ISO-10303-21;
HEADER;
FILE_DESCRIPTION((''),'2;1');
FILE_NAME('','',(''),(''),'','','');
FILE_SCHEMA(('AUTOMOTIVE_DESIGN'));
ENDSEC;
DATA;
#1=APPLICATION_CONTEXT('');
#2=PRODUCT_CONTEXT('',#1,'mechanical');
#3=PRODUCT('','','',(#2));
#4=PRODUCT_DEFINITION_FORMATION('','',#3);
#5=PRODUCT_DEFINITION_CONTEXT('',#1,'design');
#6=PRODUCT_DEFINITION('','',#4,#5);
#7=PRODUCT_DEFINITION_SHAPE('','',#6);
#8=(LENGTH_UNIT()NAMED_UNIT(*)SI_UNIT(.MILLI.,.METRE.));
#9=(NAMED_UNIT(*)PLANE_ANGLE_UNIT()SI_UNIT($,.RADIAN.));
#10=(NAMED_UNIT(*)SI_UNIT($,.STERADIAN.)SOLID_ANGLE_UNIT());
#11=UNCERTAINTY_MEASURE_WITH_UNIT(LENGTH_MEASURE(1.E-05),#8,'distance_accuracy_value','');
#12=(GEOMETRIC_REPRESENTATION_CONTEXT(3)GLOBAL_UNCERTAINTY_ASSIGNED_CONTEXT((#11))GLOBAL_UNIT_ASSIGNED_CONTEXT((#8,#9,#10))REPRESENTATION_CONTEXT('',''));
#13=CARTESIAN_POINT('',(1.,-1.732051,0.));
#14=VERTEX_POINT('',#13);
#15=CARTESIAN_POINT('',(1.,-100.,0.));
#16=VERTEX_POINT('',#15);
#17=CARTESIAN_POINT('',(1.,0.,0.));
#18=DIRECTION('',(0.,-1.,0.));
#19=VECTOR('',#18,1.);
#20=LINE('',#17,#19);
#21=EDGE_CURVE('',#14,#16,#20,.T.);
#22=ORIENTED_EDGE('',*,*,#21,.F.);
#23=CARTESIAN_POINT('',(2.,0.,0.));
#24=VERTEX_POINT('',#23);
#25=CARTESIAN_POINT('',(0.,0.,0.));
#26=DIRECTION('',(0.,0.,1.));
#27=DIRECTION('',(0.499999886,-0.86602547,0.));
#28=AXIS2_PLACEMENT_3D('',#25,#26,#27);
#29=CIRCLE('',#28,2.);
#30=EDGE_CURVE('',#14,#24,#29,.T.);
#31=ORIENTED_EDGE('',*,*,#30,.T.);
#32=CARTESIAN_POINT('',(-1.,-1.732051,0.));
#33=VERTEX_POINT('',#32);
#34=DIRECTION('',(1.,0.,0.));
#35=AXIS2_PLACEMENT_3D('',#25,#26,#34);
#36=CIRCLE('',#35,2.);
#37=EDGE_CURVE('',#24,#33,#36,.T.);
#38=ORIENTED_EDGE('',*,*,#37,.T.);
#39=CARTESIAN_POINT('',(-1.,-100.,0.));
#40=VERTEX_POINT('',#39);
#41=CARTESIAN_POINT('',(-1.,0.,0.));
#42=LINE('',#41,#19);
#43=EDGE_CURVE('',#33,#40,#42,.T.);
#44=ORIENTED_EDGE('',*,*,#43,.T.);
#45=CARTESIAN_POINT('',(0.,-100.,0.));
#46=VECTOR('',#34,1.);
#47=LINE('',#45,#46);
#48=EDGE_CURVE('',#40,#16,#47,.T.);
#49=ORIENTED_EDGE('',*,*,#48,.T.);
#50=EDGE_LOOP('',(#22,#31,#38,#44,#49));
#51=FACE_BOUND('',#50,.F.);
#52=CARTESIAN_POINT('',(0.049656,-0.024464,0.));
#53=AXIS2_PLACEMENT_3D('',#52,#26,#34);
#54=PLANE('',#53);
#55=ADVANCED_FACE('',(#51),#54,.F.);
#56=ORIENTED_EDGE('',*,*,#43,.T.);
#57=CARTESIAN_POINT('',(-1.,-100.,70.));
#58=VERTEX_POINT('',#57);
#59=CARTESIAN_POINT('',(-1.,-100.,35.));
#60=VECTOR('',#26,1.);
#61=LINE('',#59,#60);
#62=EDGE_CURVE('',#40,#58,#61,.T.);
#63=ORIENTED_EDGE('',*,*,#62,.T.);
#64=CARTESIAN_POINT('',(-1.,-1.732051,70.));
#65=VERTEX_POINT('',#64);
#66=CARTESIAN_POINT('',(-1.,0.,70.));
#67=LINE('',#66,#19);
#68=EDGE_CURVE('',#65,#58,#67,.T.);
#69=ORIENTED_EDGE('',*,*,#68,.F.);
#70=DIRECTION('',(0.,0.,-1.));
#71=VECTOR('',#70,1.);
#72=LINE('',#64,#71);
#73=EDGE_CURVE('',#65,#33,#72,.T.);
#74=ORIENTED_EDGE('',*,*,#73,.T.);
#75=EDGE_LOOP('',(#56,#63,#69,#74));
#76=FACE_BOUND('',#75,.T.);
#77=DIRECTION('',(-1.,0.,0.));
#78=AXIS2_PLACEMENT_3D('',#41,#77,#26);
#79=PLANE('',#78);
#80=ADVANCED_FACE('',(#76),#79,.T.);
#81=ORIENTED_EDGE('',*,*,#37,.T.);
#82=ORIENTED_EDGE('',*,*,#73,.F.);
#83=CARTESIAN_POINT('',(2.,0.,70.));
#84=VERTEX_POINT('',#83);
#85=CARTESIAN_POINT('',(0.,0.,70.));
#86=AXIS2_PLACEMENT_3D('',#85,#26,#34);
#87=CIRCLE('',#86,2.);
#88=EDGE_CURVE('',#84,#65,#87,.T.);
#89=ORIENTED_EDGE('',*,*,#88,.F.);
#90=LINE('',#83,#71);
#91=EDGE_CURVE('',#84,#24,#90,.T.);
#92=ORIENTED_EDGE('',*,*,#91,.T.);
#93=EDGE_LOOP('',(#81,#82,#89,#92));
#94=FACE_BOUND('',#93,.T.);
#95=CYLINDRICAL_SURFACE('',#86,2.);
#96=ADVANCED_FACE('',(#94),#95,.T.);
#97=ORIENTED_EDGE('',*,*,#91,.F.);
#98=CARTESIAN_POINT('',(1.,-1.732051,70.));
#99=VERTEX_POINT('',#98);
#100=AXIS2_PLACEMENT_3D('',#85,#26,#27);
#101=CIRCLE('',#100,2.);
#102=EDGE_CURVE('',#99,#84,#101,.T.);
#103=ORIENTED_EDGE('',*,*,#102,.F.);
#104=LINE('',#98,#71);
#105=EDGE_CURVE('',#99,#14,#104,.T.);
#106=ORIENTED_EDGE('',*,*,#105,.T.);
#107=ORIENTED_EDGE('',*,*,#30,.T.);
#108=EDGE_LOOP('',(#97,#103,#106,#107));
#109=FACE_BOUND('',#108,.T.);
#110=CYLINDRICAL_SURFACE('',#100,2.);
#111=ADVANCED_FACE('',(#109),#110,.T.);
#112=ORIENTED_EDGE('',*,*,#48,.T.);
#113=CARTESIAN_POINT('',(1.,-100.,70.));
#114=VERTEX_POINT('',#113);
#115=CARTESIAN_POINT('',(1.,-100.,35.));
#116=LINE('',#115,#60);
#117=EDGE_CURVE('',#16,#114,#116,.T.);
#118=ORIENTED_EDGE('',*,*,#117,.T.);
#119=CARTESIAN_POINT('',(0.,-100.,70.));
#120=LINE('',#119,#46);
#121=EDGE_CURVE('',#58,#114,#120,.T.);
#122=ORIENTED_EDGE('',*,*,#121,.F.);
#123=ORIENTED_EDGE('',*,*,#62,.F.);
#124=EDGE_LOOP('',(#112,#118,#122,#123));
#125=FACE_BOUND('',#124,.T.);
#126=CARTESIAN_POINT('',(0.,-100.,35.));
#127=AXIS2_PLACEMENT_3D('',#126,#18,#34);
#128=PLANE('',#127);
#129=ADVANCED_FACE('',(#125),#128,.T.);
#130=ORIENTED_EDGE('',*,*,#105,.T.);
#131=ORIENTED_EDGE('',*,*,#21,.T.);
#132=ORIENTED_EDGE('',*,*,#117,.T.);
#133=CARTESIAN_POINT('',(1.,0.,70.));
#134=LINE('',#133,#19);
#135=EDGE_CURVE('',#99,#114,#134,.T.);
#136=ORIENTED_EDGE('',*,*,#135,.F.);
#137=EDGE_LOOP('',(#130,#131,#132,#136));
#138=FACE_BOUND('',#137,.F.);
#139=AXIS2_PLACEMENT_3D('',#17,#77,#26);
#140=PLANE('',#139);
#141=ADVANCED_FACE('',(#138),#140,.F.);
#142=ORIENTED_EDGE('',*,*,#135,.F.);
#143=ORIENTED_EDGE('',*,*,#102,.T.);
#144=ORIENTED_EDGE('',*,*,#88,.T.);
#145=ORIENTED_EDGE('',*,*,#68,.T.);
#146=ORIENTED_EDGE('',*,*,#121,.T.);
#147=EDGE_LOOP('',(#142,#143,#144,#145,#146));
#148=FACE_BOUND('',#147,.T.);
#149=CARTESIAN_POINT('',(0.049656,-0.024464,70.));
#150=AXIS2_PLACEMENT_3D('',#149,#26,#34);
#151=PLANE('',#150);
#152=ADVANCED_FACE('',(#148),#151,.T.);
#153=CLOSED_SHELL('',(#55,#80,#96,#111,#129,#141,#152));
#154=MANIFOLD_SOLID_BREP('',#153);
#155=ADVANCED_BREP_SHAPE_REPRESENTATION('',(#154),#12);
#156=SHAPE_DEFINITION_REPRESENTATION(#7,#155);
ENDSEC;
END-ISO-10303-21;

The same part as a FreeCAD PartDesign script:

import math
import FreeCAD as App
import Part
import Sketcher

V = App.Vector
Q = App.Units.Quantity


def add_polygon(sketch, points):
    """Adds a closed chain of lines whose ends are joined by coincident constraints."""
    first, n = sketch.GeometryCount, len(points)
    for a, b in zip(points, points[1:] + points[:1]):
        sketch.addGeometry(Part.LineSegment(App.Vector(*a, 0), App.Vector(*b, 0)), False)
    for i in range(n):
        sketch.addConstraint(Sketcher.Constraint("Coincident", first + i, 2, first + (i + 1) % n, 1))

doc = App.newDocument("Part")
body = doc.addObject("PartDesign::Body", "Body")

# Sketch on XZ plane
sketch1 = doc.addObject("Sketcher::SketchObject", "Sketch")
body.addObject(sketch1)
sketch1.AttachmentSupport = (doc.XZ_Plane, [""])
sketch1.MapMode = "FlatFace"
add_polygon(sketch1, [(-1, 70), (-1, 0), (1, 0), (1, 70)])  # lines 0-3
sketch1.addConstraint(Sketcher.Constraint("Vertical", 0))
sketch1.addConstraint(Sketcher.Constraint("Horizontal", 1))
sketch1.addConstraint(Sketcher.Constraint("Vertical", 2))
sketch1.addConstraint(Sketcher.Constraint("Horizontal", 3))
sketch1.addConstraint(Sketcher.Constraint("Symmetric", 0, 2, 1, 2, -1, 1))
sketch1.addConstraint(Sketcher.Constraint("DistanceX", 1, 1, 1, 2, Q("2 mm")))
sketch1.addConstraint(Sketcher.Constraint("DistanceY", 0, 2, 0, 1, Q("70 mm")))
pad1 = doc.addObject("PartDesign::Pad", "Pad")
body.addObject(pad1)
pad1.Profile = sketch1
pad1.Length = 100

# Sketch on XY plane
sketch2 = doc.addObject("Sketcher::SketchObject", "Sketch001")
body.addObject(sketch2)
sketch2.AttachmentSupport = (doc.XY_Plane, [""])
sketch2.MapMode = "FlatFace"
sketch2.AttachmentOffset = App.Placement(V(0, 0, 70), App.Rotation())
sketch2.addGeometry(Part.ArcOfCircle(Part.Circle(V(0, 0, 0), V(0, 0, 1), 2), math.radians(-60), math.radians(0)), False)
sketch2.addGeometry(Part.ArcOfCircle(Part.Circle(V(0, 0, 0), V(0, 0, 1), 2), math.radians(0), math.radians(240)), False)
sketch2.addGeometry(Part.LineSegment(V(-1, -1.7, 0), V(-1, 0, 0)), False)
sketch2.addGeometry(Part.LineSegment(V(-1, 0, 0), V(1, 0, 0)), False)
sketch2.addGeometry(Part.LineSegment(V(1, 0, 0), V(1, -1.7, 0)), False)
sketch2.addConstraint(Sketcher.Constraint("Tangent", 0, 2, 1, 1))
sketch2.addConstraint(Sketcher.Constraint("Coincident", 1, 2, 2, 1))
sketch2.addConstraint(Sketcher.Constraint("Coincident", 2, 2, 3, 1))
sketch2.addConstraint(Sketcher.Constraint("Coincident", 3, 2, 4, 1))
sketch2.addConstraint(Sketcher.Constraint("Coincident", 4, 2, 0, 1))
sketch2.addConstraint(Sketcher.Constraint("Vertical", 2))
sketch2.addConstraint(Sketcher.Constraint("Horizontal", 3))
sketch2.addConstraint(Sketcher.Constraint("Vertical", 4))
sketch2.addConstraint(Sketcher.Constraint("Coincident", 0, 3, -1, 1))
sketch2.addConstraint(Sketcher.Constraint("Equal", 0, 1))
sketch2.addConstraint(Sketcher.Constraint("Symmetric", 2, 2, 3, 2, -1, 1))
sketch2.addConstraint(Sketcher.Constraint("PointOnObject", 0, 2, -1))
sketch2.addConstraint(Sketcher.Constraint("Radius", 0, Q("2 mm")))
sketch2.addConstraint(Sketcher.Constraint("DistanceX", 3, 1, 3, 2, Q("2 mm")))
pad2 = doc.addObject("PartDesign::Pad", "Pad001")
body.addObject(pad2)
pad2.Profile = sketch2
pad2.Length = 70
pad2.Reversed = True

doc.recompute()
